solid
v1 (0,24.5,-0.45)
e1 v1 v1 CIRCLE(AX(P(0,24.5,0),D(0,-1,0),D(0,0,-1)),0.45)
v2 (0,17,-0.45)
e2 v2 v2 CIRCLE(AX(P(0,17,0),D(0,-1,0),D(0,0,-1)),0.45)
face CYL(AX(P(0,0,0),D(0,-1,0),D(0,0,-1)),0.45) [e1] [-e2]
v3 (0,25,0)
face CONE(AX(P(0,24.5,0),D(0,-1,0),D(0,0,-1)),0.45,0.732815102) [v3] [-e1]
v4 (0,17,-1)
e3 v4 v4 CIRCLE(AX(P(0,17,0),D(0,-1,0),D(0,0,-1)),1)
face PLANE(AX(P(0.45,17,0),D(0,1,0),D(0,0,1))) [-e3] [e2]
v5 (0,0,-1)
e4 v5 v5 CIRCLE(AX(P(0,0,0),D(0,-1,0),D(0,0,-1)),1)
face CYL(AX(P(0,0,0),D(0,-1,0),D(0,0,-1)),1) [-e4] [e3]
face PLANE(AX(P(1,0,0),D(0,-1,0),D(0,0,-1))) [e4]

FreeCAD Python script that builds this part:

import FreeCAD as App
import Part
import Sketcher
from FreeCAD import Vector
Q = App.Units.Quantity


def add_polygon(sketch, points):
    """Adds a closed chain of lines whose ends are joined by coincident constraints."""
    first, n = sketch.GeometryCount, len(points)
    for a, b in zip(points, points[1:] + points[:1]):
        sketch.addGeometry(Part.LineSegment(App.Vector(*a, 0), App.Vector(*b, 0)), False)
    for i in range(n):
        sketch.addConstraint(Sketcher.Constraint("Coincident", first + i, 2, first + (i + 1) % n, 1))

doc = App.newDocument("Part")
body = doc.addObject("PartDesign::Body", "Body")

sketch1 = body.newObject("Sketcher::SketchObject", "Sketch")
sketch1.AttachmentSupport = (doc.getObject("XY_Plane"), [""])
sketch1.MapMode = "FlatFace"
add_polygon(sketch1, [(0.5, 24.5), (0, 25), (0, 0), (1, 0), (1, 17), (0.5, 17)])
sketch1.addConstraint([
    Sketcher.Constraint("Vertical", 1),
    Sketcher.Constraint("Horizontal", 2),
    Sketcher.Constraint("Vertical", 3),
    Sketcher.Constraint("Horizontal", 4),
    Sketcher.Constraint("Vertical", 5),
    Sketcher.Constraint("Coincident", 1, 2, -1, 1),
    Sketcher.Constraint("DistanceX", 2, 1, 2, 2, Q("1 mm")),
    Sketcher.Constraint("DistanceY", 1, 2, 1, 1, Q("25 mm")),
    Sketcher.Constraint("DistanceY", 3, 1, 3, 2, Q("17 mm")),
    Sketcher.Constraint("DistanceY", 5, 1, 5, 2, Q("7.5 mm")),
    Sketcher.Constraint("DistanceX", 4, 2, 4, 1, Q("0.55 mm")),
])
revolution = body.newObject("PartDesign::Revolution", "Revolution")
revolution.Profile = sketch1
revolution.ReferenceAxis = (sketch1, ["V_Axis"])
revolution.Angle = 360

doc.recompute()
